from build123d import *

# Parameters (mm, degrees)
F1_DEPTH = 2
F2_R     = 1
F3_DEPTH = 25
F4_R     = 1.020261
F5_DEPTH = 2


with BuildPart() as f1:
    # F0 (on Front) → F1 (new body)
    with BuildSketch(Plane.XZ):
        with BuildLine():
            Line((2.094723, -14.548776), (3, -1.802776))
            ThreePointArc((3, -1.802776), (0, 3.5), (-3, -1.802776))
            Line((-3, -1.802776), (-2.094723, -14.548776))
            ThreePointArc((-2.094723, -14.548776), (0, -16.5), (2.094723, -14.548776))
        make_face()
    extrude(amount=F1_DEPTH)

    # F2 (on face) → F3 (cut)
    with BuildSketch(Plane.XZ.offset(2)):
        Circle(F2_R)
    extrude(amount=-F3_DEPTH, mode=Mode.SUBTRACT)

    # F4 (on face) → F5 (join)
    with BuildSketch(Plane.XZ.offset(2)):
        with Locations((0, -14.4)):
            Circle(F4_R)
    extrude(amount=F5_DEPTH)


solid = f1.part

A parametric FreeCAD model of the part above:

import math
import FreeCAD as App
import Part
import Sketcher

doc = App.newDocument("Part")
body = doc.addObject("PartDesign::Body", "Body")

# Sketch on XZ plane
sketch1 = doc.addObject("Sketcher::SketchObject", "Sketch")
body.addObject(sketch1)
sketch1.AttachmentSupport = (doc.XZ_Plane, [""])
sketch1.MapMode = "FlatFace"
sketch1.addGeometry(Part.LineSegment(App.Vector(2.1, -14.5, 0), App.Vector(3, -1.8, 0)), False)
sketch1.addGeometry(Part.ArcOfCircle(Part.Circle(App.Vector(0, 0, 0), App.Vector(0, 0, 1), 3.5), math.radians(-31), math.radians(211)), False)
sketch1.addGeometry(Part.LineSegment(App.Vector(-3, -1.8, 0), App.Vector(-2.1, -14.5, 0)), False)
sketch1.addGeometry(Part.ArcOfCircle(Part.Circle(App.Vector(0, -14.4, 0), App.Vector(0, 0, 1), 2.1), math.radians(-176), math.radians(-4)), False)
sketch1.addConstraint(Sketcher.Constraint("Coincident", 0, 2, 1, 1))
sketch1.addConstraint(Sketcher.Constraint("Coincident", 1, 2, 2, 1))
sketch1.addConstraint(Sketcher.Constraint("Tangent", 2, 2, 3, 1))
sketch1.addConstraint(Sketcher.Constraint("Tangent", 3, 2, 0, 1))
sketch1.addConstraint(Sketcher.Constraint("Coincident", 1, 3, -1, 1))
sketch1.addConstraint(Sketcher.Constraint("Symmetric", 2, 2, 3, 2, -2))
sketch1.addConstraint(Sketcher.Constraint("Radius", 1, 3.5))
sketch1.addConstraint(Sketcher.Constraint("Radius", 3, 2.1))
sketch1.addConstraint(Sketcher.Constraint("DistanceX", -1, 1, 0, 2, 3.0))
sketch1.addConstraint(Sketcher.Constraint("DistanceY", 3, 3, -1, 1, 14.4))
pad1 = doc.addObject("PartDesign::Pad", "Pad")
body.addObject(pad1)
pad1.Profile = sketch1
pad1.Length = 2

# Sketch on XZ plane
sketch2 = doc.addObject("Sketcher::SketchObject", "Sketch001")
body.addObject(sketch2)
sketch2.AttachmentSupport = (doc.XZ_Plane, [""])
sketch2.MapMode = "FlatFace"
sketch2.AttachmentOffset = App.Placement(App.Vector(0, 0, 2), App.Rotation())
sketch2.addGeometry(Part.Circle(App.Vector(0, 0, 0), App.Vector(0, 0, 1), 1), False)
sketch2.addConstraint(Sketcher.Constraint("Coincident", 0, 3, -1, 1))
sketch2.addConstraint(Sketcher.Constraint("Diameter", 0, 2.0))
pocket1 = doc.addObject("PartDesign::Pocket", "Pocket")
body.addObject(pocket1)
pocket1.Profile = sketch2
pocket1.Length = 25

# Sketch on XZ plane
sketch3 = doc.addObject("Sketcher::SketchObject", "Sketch002")
body.addObject(sketch3)
sketch3.AttachmentSupport = (doc.XZ_Plane, [""])
sketch3.MapMode = "FlatFace"
sketch3.AttachmentOffset = App.Placement(App.Vector(0, 0, 2), App.Rotation())
sketch3.addGeometry(Part.Circle(App.Vector(0, -14.4, 0), App.Vector(0, 0, 1), 1), False)
sketch3.addConstraint(Sketcher.Constraint("PointOnObject", 0, 3, -2))
sketch3.addConstraint(Sketcher.Constraint("DistanceY", 0, 3, -1, 1, 14.4))
sketch3.addConstraint(Sketcher.Constraint("Diameter", 0, 2.040522))
pad2 = doc.addObject("PartDesign::Pad", "Pad001")
body.addObject(pad2)
pad2.Profile = sketch3
pad2.Length = 2

doc.recompute()
